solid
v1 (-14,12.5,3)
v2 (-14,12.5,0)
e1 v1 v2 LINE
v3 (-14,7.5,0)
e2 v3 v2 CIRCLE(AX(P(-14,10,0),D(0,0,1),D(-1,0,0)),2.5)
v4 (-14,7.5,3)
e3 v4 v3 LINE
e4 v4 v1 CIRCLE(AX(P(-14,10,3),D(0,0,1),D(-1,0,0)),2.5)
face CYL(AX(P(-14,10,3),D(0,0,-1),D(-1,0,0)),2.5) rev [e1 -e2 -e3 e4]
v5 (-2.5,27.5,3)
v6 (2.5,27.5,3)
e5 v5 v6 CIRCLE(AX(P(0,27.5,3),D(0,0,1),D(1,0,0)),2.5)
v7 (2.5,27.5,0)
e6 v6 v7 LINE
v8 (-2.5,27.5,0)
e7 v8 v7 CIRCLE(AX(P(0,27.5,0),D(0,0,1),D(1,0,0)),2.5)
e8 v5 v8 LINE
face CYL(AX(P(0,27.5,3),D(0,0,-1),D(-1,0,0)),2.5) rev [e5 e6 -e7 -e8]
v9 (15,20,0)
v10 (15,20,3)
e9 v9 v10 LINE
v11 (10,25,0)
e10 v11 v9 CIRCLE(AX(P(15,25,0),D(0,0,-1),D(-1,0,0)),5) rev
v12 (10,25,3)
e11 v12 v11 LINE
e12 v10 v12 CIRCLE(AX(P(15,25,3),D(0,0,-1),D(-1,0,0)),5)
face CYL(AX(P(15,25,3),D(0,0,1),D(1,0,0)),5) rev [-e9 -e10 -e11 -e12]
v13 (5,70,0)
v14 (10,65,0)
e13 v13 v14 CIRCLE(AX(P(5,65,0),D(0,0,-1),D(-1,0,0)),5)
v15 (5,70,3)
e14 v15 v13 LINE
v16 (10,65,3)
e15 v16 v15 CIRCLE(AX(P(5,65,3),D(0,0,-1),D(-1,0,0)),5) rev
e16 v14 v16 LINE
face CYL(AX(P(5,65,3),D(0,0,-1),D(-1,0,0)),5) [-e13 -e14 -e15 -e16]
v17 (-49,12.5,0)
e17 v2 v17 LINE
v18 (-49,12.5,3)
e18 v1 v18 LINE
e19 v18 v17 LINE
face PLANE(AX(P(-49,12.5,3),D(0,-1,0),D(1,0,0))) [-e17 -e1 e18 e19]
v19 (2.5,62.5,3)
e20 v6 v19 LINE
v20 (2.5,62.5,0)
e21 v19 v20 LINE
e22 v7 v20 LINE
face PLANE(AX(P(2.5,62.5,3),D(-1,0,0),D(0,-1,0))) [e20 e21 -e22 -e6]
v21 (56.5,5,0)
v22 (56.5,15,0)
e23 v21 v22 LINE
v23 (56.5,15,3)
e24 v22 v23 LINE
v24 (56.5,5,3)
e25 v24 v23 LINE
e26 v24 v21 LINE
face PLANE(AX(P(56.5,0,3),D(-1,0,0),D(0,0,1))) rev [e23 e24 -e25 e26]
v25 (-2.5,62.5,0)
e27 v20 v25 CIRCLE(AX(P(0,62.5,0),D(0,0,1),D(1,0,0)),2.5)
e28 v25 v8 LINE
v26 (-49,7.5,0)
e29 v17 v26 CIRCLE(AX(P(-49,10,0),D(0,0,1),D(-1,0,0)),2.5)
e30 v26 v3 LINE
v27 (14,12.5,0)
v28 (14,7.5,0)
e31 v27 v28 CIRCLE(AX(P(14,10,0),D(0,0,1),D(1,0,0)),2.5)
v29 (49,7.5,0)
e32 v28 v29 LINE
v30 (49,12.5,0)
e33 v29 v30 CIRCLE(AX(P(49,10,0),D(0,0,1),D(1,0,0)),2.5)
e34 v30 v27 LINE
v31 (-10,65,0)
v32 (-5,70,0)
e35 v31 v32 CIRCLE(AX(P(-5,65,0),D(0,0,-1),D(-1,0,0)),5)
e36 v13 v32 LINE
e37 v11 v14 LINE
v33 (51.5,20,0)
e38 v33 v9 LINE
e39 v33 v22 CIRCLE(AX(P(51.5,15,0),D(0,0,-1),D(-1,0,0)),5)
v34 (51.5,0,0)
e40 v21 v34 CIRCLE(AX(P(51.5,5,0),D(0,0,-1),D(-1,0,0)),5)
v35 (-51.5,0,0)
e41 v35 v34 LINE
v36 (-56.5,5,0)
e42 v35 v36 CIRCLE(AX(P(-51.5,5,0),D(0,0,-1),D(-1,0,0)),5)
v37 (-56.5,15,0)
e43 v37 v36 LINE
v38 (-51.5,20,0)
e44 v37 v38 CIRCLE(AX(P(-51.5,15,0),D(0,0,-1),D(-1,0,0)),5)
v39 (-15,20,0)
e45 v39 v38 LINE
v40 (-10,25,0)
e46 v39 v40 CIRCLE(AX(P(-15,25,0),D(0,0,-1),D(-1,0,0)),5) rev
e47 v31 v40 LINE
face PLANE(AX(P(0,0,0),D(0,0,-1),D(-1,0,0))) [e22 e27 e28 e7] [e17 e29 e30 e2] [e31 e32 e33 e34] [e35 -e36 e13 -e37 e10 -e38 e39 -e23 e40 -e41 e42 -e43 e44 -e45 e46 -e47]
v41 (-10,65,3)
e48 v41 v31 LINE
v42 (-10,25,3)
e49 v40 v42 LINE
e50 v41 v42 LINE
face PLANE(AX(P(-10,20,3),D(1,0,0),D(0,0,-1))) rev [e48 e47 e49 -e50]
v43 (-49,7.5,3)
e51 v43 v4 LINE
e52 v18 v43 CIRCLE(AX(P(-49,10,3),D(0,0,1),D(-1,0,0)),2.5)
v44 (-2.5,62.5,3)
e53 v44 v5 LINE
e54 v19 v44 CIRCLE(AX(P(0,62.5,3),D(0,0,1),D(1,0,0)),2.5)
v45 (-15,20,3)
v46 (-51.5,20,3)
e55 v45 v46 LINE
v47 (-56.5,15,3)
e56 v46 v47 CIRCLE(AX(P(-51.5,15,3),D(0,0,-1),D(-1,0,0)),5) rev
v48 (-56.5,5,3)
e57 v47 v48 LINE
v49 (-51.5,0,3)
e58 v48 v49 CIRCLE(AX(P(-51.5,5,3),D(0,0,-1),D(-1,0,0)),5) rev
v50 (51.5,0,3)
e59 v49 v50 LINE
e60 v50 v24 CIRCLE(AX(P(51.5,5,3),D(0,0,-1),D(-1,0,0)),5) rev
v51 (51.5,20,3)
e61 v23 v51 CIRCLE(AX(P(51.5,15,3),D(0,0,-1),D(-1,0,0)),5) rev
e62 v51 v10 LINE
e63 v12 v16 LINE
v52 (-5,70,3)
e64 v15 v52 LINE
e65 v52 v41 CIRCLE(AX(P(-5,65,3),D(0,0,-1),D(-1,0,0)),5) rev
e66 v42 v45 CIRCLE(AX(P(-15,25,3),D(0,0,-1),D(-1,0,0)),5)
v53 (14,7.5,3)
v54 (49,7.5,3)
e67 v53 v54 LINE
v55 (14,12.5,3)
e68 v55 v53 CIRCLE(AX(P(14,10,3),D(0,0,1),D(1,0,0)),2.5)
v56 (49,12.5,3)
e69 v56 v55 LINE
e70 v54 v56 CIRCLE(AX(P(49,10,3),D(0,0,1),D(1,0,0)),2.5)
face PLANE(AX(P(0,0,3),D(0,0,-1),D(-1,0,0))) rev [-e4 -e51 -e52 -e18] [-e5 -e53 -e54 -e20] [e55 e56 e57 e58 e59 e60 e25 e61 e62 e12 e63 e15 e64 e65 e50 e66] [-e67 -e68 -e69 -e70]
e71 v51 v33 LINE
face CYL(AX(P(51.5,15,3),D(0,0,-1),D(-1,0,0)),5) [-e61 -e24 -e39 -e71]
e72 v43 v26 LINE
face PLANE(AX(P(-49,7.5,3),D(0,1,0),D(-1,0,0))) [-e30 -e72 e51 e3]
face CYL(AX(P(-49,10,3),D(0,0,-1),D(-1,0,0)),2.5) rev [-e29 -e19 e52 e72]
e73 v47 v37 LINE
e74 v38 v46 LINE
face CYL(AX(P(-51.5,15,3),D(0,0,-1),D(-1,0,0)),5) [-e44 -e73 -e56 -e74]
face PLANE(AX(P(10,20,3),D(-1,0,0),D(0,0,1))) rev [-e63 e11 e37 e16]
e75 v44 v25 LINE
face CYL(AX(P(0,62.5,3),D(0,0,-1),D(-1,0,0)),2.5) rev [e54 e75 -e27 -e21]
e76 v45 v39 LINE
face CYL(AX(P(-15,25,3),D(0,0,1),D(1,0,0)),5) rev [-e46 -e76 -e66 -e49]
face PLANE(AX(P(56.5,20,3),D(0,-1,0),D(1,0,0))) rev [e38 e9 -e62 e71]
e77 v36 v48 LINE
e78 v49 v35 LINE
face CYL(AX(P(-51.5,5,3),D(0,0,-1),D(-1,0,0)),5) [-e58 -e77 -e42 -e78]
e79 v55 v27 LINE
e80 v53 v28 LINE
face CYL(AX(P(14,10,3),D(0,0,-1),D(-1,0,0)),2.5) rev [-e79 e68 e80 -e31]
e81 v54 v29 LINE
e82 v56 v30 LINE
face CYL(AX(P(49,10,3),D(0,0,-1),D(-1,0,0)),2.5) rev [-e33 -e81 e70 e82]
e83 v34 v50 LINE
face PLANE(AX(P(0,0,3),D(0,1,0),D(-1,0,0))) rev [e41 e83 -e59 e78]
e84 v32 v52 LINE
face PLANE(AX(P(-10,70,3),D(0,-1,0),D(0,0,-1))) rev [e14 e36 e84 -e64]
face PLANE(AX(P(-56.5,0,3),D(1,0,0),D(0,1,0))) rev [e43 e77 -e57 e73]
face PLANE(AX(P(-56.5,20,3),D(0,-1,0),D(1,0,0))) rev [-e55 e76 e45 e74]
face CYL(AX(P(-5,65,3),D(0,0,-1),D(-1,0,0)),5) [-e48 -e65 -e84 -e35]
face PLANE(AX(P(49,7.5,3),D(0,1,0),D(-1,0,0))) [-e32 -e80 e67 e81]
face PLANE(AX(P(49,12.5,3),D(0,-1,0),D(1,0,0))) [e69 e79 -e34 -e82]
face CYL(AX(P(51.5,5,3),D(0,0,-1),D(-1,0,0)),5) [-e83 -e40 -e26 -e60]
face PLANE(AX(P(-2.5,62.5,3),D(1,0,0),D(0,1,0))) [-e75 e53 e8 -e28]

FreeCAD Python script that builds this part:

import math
import FreeCAD as App
import Part
import Sketcher


def edges_at(feature, points):
    """Names of the edges that pass closest to the given points."""
    edges = feature.Shape.Edges
    near = lambda p: min(range(len(edges)), key=lambda i: edges[i].distToShape(Part.Vertex(*p))[0])
    return sorted({f"Edge{near(p) + 1}" for p in points})


def add_polygon(sketch, points):
    """Adds a closed chain of lines whose ends are joined by coincident constraints."""
    first, n = sketch.GeometryCount, len(points)
    for a, b in zip(points, points[1:] + points[:1]):
        sketch.addGeometry(Part.LineSegment(App.Vector(*a, 0), App.Vector(*b, 0)), False)
    for i in range(n):
        sketch.addConstraint(Sketcher.Constraint("Coincident", first + i, 2, first + (i + 1) % n, 1))

doc = App.newDocument("Part")
body = doc.addObject("PartDesign::Body", "Body")

sketch1 = body.newObject("Sketcher::SketchObject", "Sketch")
sketch1.AttachmentSupport = (doc.getObject("XY_Plane"), [""])
sketch1.MapMode = "FlatFace"
add_polygon(sketch1, [(56.5, 0), (56.5, 20), (10, 20), (10, 70), (-10, 70), (-10, 20), (-56.5, 20), (-56.5, 0)])
sketch1.addGeometry(Part.LineSegment(App.Vector(-14, 7.5, 0), App.Vector(-49, 7.5, 0)), False)
sketch1.addGeometry(Part.ArcOfCircle(Part.Circle(App.Vector(-49, 10, 0), App.Vector(0, 0, 1), 2.5), math.radians(90), math.radians(270)), False)
sketch1.addGeometry(Part.LineSegment(App.Vector(-49, 12.5, 0), App.Vector(-14, 12.5, 0)), False)
sketch1.addGeometry(Part.ArcOfCircle(Part.Circle(App.Vector(-14, 10, 0), App.Vector(0, 0, 1), 2.5), math.radians(-90), math.radians(90)), False)
sketch1.addGeometry(Part.ArcOfCircle(Part.Circle(App.Vector(49, 10, 0), App.Vector(0, 0, 1), 2.5), math.radians(-90), math.radians(90)), False)
sketch1.addGeometry(Part.LineSegment(App.Vector(49, 7.5, 0), App.Vector(14, 7.5, 0)), False)
sketch1.addGeometry(Part.ArcOfCircle(Part.Circle(App.Vector(14, 10, 0), App.Vector(0, 0, 1), 2.5), math.radians(90), math.radians(270)), False)
sketch1.addGeometry(Part.LineSegment(App.Vector(14, 12.5, 0), App.Vector(49, 12.5, 0)), False)
sketch1.addGeometry(Part.ArcOfCircle(Part.Circle(App.Vector(0, 62.5, 0), App.Vector(0, 0, 1), 2.5), math.radians(0), math.radians(180)), False)
sketch1.addGeometry(Part.LineSegment(App.Vector(2.5, 62.5, 0), App.Vector(2.5, 27.5, 0)), False)
sketch1.addGeometry(Part.ArcOfCircle(Part.Circle(App.Vector(0, 27.5, 0), App.Vector(0, 0, 1), 2.5), math.radians(180), math.radians(360)), False)
sketch1.addGeometry(Part.LineSegment(App.Vector(-2.5, 27.5, 0), App.Vector(-2.5, 62.5, 0)), False)
sketch1.addConstraint([
    Sketcher.Constraint("Tangent", 8, 2, 9, 2),
    Sketcher.Constraint("Tangent", 9, 1, 10, 1),
    Sketcher.Constraint("Tangent", 10, 2, 11, 2),
    Sketcher.Constraint("Tangent", 11, 1, 8, 1),
    Sketcher.Constraint("Tangent", 12, 1, 13, 1),
    Sketcher.Constraint("Tangent", 13, 2, 14, 2),
    Sketcher.Constraint("Tangent", 14, 1, 15, 1),
    Sketcher.Constraint("Tangent", 15, 2, 12, 2),
    Sketcher.Constraint("Tangent", 16, 1, 17, 1),
    Sketcher.Constraint("Tangent", 17, 2, 18, 2),
    Sketcher.Constraint("Tangent", 18, 1, 19, 1),
    Sketcher.Constraint("Tangent", 19, 2, 16, 2),
    Sketcher.Constraint("Vertical", 0),
    Sketcher.Constraint("Horizontal", 1),
    Sketcher.Constraint("Vertical", 2),
    Sketcher.Constraint("Horizontal", 3),
    Sketcher.Constraint("Vertical", 4),
    Sketcher.Constraint("Horizontal", 5),
    Sketcher.Constraint("Vertical", 6),
    Sketcher.Constraint("Horizontal", 7),
    Sketcher.Constraint("Horizontal", 8),
    Sketcher.Constraint("Horizontal", 10),
    Sketcher.Constraint("Horizontal", 13),
    Sketcher.Constraint("Horizontal", 15),
    Sketcher.Constraint("Vertical", 17),
    Sketcher.Constraint("Vertical", 19),
    Sketcher.Constraint("Equal", 11, 12),
    Sketcher.Constraint("Equal", 14, 16),
    Sketcher.Constraint("Symmetric", 6, 2, 7, 2, -1, 1),
    Sketcher.Constraint("Symmetric", 9, 3, 12, 3, -2),
    Sketcher.Constraint("Symmetric", 1, 2, 4, 2, -2),
    Sketcher.Constraint("PointOnObject", 16, 3, -2),
    Sketcher.Constraint("Equal", 10, 13),
    Sketcher.Constraint("Equal", 3, 0),
    Sketcher.Constraint("Equal", 15, 17),
    Sketcher.Constraint("Radius", 9, 2.5),
    Sketcher.Constraint("DistanceX", 3, 2, 3, 1, 20.0),
    Sketcher.Constraint("DistanceX", 7, 1, 7, 2, 113.0),
    Sketcher.Constraint("DistanceX", 8, 2, 8, 1, 35.0),
    Sketcher.Constraint("DistanceY", 2, 1, 2, 2, 50.0),
    Sketcher.Constraint("DistanceX", 9, 3, -1, 1, 49.0),
    Sketcher.Constraint("DistanceY", -1, 1, 9, 3, 10.0),
    Sketcher.Constraint("DistanceY", 10, 2, 18, 3, 15.0),
])
pad1 = body.newObject("PartDesign::Pad", "Pad")
pad1.Profile = sketch1
pad1.Length = 3
doc.recompute()

fillet = body.newObject("PartDesign::Fillet", "Fillet")
fillet.Base = (pad1, edges_at(pad1, [
    (-10, 70, 1.5),
    (10, 70, 1.5),
    (10, 20, 1.5),
    (56.5, 20, 1.5),
    (56.5, 0, 1.5),
    (-56.5, 0, 1.5),
    (-56.5, 20, 1.5),
    (-10, 20, 1.5),
]))
fillet.Radius = 5

doc.recompute()
